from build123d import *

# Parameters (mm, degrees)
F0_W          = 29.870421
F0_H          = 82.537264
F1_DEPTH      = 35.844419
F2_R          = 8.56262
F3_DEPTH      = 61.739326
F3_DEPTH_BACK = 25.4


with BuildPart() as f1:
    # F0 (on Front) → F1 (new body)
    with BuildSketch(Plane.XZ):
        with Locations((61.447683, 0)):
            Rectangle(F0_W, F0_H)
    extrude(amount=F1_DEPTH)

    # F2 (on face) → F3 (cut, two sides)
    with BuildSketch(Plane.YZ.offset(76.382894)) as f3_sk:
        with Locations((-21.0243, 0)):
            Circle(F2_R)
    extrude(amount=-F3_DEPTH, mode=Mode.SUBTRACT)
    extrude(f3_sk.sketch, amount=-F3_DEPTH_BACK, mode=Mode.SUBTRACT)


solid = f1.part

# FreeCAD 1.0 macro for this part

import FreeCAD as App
import Part
import Sketcher
Q = App.Units.Quantity

doc = App.newDocument("Part")
body = doc.addObject("PartDesign::Body", "Body")

sketch1 = body.newObject("Sketcher::SketchObject", "Sketch")
sketch1.AttachmentSupport = (doc.getObject("XZ_Plane"), [""])
sketch1.MapMode = "FlatFace"
sketch1.addGeometry([
    Part.LineSegment(App.Vector(47, 41, 0), App.Vector(47, -41, 0)),
    Part.LineSegment(App.Vector(47, -41, 0), App.Vector(76, -41, 0)),
    Part.LineSegment(App.Vector(76, -41, 0), App.Vector(76, 41, 0)),
    Part.LineSegment(App.Vector(76, 41, 0), App.Vector(47, 41, 0)),
], False)
sketch1.addConstraint([
    Sketcher.Constraint("Coincident", 0, 2, 1, 1),
    Sketcher.Constraint("Coincident", 1, 2, 2, 1),
    Sketcher.Constraint("Coincident", 2, 2, 3, 1),
    Sketcher.Constraint("Coincident", 3, 2, 0, 1),
    Sketcher.Constraint("Vertical", 0),
    Sketcher.Constraint("Horizontal", 1),
    Sketcher.Constraint("Vertical", 2),
    Sketcher.Constraint("Horizontal", 3),
    Sketcher.Constraint("DistanceX", 1, 1, 1, 2, Q("29.870421 mm")),
    Sketcher.Constraint("DistanceY", 0, 2, 0, 1, Q("82.537264 mm")),
    Sketcher.Constraint("DistanceY", 0, 2, -1, 1, Q("41.268632 mm")),
    Sketcher.Constraint("DistanceX", -1, 1, 0, 2, Q("46.512473 mm")),
])
pad1 = body.newObject("PartDesign::Pad", "Pad")
pad1.Profile = sketch1
pad1.Length = 35.844419

sketch2 = body.newObject("Sketcher::SketchObject", "Sketch001")
sketch2.AttachmentSupport = (doc.getObject("YZ_Plane"), [""])
sketch2.MapMode = "FlatFace"
sketch2.AttachmentOffset = App.Placement(App.Vector(0, 0, 76.382894), App.Rotation())
sketch2.addGeometry(Part.Circle(App.Vector(-21, 0, 0), App.Vector(0, 0, 1), 9), False)
sketch2.addConstraint([
    Sketcher.Constraint("PointOnObject", 0, 3, -1),
    Sketcher.Constraint("Diameter", 0, Q("17.12524 mm")),
    Sketcher.Constraint("DistanceX", 0, 3, -1, 1, Q("21.0243 mm")),
])
pocket1 = body.newObject("PartDesign::Pocket", "Pocket")
pocket1.Profile = sketch2
pocket1.Length = 61.739326
pocket2 = body.newObject("PartDesign::Pocket", "Pocket001")
pocket2.Profile = sketch2
pocket2.Length = Q("1 in")

doc.recompute()
